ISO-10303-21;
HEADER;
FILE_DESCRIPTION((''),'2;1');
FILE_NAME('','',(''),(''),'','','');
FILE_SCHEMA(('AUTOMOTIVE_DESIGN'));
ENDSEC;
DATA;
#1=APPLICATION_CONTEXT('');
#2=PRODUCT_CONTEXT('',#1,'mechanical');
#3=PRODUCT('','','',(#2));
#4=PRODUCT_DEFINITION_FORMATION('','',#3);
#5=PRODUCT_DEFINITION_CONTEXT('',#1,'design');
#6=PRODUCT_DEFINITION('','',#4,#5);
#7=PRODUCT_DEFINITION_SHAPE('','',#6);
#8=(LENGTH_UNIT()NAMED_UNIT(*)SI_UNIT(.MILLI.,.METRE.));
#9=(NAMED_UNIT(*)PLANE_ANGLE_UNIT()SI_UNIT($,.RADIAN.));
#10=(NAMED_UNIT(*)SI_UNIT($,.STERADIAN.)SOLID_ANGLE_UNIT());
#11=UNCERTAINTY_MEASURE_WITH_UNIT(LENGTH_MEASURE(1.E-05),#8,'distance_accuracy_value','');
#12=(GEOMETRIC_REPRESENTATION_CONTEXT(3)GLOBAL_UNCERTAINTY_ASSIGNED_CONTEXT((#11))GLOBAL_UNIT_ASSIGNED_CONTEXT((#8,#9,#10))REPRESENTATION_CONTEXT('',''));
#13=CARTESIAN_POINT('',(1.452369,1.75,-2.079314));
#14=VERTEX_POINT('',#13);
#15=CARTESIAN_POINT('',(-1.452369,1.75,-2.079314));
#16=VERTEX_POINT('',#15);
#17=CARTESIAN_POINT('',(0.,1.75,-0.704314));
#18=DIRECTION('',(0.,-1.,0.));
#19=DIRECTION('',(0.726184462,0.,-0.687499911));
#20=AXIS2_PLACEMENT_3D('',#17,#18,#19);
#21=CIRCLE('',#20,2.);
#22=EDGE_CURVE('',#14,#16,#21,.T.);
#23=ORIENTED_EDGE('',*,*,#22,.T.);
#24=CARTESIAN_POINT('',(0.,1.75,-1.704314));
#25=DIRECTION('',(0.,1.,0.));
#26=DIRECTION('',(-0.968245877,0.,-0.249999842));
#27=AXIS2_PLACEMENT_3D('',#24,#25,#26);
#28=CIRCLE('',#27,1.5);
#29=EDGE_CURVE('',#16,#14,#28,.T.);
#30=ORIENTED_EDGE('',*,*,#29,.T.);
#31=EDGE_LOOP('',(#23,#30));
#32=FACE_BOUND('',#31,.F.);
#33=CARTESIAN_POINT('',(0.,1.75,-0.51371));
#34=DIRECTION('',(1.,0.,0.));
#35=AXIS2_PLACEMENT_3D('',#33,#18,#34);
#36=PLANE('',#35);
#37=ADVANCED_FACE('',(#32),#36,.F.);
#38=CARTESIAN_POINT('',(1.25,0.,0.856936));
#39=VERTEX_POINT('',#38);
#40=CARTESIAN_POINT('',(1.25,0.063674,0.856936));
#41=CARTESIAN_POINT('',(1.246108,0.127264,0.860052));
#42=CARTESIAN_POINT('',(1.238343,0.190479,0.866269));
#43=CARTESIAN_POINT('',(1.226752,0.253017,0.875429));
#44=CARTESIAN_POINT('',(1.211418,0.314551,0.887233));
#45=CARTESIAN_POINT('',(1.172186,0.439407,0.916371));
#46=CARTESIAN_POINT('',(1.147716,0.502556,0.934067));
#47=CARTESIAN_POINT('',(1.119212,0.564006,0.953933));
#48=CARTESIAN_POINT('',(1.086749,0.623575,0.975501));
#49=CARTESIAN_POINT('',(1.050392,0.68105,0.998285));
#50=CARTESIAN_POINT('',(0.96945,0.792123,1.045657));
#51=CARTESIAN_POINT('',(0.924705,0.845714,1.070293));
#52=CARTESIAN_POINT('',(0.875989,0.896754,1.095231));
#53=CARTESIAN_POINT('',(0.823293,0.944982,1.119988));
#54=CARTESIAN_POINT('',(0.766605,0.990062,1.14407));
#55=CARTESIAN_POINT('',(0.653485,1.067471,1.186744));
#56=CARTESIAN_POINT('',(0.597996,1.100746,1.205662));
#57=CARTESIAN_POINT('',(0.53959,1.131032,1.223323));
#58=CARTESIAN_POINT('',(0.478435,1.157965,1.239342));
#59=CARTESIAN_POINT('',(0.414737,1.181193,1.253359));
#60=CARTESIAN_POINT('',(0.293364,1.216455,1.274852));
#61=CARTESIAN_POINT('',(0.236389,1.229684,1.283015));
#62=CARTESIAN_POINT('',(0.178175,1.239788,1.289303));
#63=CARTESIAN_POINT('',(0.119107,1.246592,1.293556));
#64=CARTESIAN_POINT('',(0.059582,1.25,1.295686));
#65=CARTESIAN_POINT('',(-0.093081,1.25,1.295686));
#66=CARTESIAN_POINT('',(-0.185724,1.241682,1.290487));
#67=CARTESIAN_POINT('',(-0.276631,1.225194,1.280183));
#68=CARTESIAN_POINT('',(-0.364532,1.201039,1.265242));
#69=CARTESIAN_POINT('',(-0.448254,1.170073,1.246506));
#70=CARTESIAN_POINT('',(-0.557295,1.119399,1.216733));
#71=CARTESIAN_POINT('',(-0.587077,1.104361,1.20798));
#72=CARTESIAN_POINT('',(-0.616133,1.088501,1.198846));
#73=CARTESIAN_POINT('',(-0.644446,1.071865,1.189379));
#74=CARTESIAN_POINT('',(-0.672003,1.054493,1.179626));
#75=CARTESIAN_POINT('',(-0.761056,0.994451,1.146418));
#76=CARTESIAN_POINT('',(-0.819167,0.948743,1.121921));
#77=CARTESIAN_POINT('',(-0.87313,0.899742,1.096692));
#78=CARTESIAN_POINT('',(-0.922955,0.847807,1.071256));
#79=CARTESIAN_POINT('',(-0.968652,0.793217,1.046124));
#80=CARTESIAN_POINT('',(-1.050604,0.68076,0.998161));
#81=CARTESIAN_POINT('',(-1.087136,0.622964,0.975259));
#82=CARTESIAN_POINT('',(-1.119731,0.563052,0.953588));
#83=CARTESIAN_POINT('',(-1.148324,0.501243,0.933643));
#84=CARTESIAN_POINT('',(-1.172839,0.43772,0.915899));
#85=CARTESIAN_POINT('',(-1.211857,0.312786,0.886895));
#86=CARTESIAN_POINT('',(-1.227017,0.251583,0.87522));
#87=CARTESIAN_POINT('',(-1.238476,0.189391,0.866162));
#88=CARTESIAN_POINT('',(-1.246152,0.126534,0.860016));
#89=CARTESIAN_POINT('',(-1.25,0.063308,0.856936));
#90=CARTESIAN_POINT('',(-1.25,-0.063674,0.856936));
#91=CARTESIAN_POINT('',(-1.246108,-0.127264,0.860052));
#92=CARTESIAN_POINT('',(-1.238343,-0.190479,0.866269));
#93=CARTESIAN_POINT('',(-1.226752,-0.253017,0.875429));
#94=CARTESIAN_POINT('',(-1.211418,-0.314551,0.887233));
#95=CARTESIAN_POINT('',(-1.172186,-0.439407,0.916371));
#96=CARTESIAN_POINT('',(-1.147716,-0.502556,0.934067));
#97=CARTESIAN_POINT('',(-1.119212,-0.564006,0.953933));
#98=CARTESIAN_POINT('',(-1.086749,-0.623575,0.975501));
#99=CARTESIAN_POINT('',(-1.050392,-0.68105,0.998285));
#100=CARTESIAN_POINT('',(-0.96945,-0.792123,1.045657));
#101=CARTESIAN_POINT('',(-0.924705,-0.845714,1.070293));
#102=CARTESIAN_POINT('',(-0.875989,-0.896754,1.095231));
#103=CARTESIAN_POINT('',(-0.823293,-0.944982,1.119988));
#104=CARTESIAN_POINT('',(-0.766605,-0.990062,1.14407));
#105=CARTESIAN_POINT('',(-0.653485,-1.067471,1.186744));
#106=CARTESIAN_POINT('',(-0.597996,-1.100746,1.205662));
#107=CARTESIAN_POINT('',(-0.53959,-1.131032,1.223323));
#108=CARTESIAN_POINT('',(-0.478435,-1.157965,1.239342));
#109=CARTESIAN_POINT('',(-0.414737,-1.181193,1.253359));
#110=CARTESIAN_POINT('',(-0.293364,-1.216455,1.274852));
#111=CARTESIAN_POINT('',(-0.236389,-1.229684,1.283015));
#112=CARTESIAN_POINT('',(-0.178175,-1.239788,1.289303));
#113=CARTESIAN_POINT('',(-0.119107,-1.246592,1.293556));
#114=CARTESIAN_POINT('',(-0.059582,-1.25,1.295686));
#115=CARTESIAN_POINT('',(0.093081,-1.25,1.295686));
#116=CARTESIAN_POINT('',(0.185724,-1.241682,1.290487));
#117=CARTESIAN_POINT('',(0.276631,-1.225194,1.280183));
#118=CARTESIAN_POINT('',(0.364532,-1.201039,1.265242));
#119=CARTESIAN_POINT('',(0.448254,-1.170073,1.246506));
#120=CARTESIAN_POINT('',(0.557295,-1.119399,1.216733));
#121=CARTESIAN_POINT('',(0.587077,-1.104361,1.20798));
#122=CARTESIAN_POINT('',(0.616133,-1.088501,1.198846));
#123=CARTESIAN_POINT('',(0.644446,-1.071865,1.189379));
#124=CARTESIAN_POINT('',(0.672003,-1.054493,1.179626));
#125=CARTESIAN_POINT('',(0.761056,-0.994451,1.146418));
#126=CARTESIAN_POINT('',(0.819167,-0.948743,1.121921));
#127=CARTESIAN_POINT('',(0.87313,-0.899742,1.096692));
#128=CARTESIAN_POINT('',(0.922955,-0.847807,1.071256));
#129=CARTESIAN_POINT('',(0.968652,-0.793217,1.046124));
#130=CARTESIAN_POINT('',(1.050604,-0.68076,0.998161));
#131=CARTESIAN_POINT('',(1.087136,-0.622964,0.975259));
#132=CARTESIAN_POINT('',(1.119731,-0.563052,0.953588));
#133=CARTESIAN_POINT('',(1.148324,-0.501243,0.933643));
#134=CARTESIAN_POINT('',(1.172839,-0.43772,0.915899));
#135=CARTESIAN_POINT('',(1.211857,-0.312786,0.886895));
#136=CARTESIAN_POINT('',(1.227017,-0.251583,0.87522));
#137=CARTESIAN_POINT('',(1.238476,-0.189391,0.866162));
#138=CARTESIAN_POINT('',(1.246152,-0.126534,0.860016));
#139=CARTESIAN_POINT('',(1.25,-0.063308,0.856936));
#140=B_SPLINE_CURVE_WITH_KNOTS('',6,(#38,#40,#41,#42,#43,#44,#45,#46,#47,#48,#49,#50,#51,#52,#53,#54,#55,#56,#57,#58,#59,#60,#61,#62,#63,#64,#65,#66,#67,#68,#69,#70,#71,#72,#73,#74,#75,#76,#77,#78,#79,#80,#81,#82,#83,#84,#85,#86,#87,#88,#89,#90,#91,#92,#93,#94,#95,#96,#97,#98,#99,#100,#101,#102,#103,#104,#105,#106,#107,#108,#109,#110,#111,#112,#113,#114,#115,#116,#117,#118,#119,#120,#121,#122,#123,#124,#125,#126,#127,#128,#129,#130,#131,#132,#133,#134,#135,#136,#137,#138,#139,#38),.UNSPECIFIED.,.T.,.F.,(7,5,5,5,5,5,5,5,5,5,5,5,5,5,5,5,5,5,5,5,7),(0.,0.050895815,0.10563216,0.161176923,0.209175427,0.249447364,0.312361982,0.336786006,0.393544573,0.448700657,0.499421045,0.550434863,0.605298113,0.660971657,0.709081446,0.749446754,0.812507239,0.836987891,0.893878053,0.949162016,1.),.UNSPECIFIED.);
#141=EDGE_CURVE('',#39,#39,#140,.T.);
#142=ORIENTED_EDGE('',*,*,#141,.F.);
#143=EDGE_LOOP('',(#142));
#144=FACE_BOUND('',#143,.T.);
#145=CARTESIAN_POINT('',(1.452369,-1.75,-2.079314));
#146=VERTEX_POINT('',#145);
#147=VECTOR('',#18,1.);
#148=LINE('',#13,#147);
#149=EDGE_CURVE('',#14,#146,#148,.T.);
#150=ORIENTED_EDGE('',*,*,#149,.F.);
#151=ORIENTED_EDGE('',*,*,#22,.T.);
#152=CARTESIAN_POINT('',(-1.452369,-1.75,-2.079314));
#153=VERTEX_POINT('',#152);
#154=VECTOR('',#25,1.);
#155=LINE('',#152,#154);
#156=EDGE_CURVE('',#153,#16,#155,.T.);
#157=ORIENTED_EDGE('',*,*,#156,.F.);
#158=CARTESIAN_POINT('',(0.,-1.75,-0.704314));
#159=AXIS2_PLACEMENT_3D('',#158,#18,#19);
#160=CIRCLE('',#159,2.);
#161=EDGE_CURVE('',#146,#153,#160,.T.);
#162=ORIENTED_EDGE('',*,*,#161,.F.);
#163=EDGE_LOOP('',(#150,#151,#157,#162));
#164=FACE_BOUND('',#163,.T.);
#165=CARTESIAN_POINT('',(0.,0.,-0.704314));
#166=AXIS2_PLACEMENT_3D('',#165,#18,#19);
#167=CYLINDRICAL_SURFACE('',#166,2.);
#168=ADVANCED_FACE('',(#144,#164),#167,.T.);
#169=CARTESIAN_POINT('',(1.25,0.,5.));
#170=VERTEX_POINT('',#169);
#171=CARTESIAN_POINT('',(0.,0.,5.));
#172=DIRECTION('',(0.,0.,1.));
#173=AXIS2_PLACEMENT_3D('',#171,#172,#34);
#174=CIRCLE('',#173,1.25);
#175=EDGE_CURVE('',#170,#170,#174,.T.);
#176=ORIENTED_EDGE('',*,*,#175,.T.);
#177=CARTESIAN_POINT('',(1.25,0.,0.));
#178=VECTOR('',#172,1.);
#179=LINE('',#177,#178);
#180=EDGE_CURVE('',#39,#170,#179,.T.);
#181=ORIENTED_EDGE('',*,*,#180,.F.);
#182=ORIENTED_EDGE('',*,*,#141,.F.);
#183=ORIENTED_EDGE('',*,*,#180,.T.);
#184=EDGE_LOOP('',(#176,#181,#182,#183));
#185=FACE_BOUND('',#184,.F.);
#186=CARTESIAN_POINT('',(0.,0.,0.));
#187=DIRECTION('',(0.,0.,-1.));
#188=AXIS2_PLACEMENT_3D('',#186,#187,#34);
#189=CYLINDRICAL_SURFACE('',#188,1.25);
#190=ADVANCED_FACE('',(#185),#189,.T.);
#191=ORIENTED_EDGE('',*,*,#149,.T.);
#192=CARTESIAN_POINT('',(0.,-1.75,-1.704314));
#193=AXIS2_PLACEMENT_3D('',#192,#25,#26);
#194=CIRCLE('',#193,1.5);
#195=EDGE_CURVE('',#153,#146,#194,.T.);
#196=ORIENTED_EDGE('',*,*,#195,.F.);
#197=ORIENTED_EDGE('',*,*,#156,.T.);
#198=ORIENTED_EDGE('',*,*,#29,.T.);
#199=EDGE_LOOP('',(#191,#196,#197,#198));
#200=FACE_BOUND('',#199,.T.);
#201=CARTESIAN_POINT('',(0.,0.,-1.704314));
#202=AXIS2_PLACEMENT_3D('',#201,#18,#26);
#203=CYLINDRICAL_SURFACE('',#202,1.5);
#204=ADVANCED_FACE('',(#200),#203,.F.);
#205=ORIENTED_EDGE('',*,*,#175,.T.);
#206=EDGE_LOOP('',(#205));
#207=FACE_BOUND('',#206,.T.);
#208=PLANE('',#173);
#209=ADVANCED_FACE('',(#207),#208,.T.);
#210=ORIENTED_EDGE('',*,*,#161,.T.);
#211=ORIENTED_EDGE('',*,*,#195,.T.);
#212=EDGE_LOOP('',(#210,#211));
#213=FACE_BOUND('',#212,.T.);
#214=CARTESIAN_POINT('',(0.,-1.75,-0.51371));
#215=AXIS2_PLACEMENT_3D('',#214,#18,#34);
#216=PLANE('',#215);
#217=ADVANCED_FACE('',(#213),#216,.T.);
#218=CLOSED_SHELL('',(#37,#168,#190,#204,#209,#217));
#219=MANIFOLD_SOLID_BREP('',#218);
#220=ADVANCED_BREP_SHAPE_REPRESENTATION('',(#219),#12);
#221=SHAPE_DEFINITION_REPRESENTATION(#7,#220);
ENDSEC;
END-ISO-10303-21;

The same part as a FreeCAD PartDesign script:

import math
import FreeCAD as App
import Part
import Sketcher

V = App.Vector

doc = App.newDocument("Part")
params = doc.addObject("Spreadsheet::Sheet", "Params")
for row, (alias, value) in enumerate([
    ("sketch1_radius", "2 mm"),
    ("sketch1_radius2", "1.5 mm"),
    ("pad1_length", "3.5 mm"),
    ("sketch2_diameter", "2.5 mm"),
    ("pad2_length", "5 mm"),
], start=1):
    params.set(f"A{row}", alias)
    params.set(f"B{row}", "=" + value)
    params.setAlias(f"B{row}", alias)

body = doc.addObject("PartDesign::Body", "Body")

# Sketch on XZ plane
sketch1 = body.newObject("Sketcher::SketchObject", "Sketch")
sketch1.AttachmentSupport = (doc.getObject("XZ_Plane"), [""])
sketch1.MapMode = "FlatFace"
sketch1.addGeometry([
    Part.ArcOfCircle(Part.Circle(V(0, -1.7, 0), V(0, 0, 1), 1.5), math.radians(-14), math.radians(194)),
    Part.ArcOfCircle(Part.Circle(V(0, -0.7, 0), V(0, 0, 1), 2), math.radians(-43), math.radians(223)),
], False)
sketch1.addConstraint([
    Sketcher.Constraint("Coincident", 0, 1, 1, 1),
    Sketcher.Constraint("Coincident", 1, 2, 0, 2),
    Sketcher.Constraint("Symmetric", 0, 1, 1, 2, -2),
    Sketcher.Constraint("Radius", 1, 2.0),
    Sketcher.Constraint("Radius", 0, 1.5),
    Sketcher.Constraint("DistanceY", 0, 3, 1, 3, 1.0),
    Sketcher.Constraint("DistanceY", 0, 3, -1, 1, 1.704314),
])
sketch1.setExpression("Constraints[3]", "Params.sketch1_radius")
sketch1.setExpression("Constraints[4]", "Params.sketch1_radius2")
pad1 = body.newObject("PartDesign::Pad", "Pad")
pad1.Profile = sketch1
pad1.setExpression("Length", "Params.pad1_length")
pad1.Midplane = True

# Sketch on XY plane
sketch2 = body.newObject("Sketcher::SketchObject", "Sketch001")
sketch2.AttachmentSupport = (doc.getObject("XY_Plane"), [""])
sketch2.MapMode = "FlatFace"
sketch2.addGeometry(Part.Circle(V(0, 0, 0), V(0, 0, 1), 1.2), False)
sketch2.addConstraint([
    Sketcher.Constraint("Coincident", 0, 3, -1, 1),
    Sketcher.Constraint("Diameter", 0, 2.5),
])
sketch2.setExpression("Constraints[1]", "Params.sketch2_diameter")
pad2 = body.newObject("PartDesign::Pad", "Pad001")
pad2.Profile = sketch2
pad2.setExpression("Length", "Params.pad2_length")

doc.recompute()
